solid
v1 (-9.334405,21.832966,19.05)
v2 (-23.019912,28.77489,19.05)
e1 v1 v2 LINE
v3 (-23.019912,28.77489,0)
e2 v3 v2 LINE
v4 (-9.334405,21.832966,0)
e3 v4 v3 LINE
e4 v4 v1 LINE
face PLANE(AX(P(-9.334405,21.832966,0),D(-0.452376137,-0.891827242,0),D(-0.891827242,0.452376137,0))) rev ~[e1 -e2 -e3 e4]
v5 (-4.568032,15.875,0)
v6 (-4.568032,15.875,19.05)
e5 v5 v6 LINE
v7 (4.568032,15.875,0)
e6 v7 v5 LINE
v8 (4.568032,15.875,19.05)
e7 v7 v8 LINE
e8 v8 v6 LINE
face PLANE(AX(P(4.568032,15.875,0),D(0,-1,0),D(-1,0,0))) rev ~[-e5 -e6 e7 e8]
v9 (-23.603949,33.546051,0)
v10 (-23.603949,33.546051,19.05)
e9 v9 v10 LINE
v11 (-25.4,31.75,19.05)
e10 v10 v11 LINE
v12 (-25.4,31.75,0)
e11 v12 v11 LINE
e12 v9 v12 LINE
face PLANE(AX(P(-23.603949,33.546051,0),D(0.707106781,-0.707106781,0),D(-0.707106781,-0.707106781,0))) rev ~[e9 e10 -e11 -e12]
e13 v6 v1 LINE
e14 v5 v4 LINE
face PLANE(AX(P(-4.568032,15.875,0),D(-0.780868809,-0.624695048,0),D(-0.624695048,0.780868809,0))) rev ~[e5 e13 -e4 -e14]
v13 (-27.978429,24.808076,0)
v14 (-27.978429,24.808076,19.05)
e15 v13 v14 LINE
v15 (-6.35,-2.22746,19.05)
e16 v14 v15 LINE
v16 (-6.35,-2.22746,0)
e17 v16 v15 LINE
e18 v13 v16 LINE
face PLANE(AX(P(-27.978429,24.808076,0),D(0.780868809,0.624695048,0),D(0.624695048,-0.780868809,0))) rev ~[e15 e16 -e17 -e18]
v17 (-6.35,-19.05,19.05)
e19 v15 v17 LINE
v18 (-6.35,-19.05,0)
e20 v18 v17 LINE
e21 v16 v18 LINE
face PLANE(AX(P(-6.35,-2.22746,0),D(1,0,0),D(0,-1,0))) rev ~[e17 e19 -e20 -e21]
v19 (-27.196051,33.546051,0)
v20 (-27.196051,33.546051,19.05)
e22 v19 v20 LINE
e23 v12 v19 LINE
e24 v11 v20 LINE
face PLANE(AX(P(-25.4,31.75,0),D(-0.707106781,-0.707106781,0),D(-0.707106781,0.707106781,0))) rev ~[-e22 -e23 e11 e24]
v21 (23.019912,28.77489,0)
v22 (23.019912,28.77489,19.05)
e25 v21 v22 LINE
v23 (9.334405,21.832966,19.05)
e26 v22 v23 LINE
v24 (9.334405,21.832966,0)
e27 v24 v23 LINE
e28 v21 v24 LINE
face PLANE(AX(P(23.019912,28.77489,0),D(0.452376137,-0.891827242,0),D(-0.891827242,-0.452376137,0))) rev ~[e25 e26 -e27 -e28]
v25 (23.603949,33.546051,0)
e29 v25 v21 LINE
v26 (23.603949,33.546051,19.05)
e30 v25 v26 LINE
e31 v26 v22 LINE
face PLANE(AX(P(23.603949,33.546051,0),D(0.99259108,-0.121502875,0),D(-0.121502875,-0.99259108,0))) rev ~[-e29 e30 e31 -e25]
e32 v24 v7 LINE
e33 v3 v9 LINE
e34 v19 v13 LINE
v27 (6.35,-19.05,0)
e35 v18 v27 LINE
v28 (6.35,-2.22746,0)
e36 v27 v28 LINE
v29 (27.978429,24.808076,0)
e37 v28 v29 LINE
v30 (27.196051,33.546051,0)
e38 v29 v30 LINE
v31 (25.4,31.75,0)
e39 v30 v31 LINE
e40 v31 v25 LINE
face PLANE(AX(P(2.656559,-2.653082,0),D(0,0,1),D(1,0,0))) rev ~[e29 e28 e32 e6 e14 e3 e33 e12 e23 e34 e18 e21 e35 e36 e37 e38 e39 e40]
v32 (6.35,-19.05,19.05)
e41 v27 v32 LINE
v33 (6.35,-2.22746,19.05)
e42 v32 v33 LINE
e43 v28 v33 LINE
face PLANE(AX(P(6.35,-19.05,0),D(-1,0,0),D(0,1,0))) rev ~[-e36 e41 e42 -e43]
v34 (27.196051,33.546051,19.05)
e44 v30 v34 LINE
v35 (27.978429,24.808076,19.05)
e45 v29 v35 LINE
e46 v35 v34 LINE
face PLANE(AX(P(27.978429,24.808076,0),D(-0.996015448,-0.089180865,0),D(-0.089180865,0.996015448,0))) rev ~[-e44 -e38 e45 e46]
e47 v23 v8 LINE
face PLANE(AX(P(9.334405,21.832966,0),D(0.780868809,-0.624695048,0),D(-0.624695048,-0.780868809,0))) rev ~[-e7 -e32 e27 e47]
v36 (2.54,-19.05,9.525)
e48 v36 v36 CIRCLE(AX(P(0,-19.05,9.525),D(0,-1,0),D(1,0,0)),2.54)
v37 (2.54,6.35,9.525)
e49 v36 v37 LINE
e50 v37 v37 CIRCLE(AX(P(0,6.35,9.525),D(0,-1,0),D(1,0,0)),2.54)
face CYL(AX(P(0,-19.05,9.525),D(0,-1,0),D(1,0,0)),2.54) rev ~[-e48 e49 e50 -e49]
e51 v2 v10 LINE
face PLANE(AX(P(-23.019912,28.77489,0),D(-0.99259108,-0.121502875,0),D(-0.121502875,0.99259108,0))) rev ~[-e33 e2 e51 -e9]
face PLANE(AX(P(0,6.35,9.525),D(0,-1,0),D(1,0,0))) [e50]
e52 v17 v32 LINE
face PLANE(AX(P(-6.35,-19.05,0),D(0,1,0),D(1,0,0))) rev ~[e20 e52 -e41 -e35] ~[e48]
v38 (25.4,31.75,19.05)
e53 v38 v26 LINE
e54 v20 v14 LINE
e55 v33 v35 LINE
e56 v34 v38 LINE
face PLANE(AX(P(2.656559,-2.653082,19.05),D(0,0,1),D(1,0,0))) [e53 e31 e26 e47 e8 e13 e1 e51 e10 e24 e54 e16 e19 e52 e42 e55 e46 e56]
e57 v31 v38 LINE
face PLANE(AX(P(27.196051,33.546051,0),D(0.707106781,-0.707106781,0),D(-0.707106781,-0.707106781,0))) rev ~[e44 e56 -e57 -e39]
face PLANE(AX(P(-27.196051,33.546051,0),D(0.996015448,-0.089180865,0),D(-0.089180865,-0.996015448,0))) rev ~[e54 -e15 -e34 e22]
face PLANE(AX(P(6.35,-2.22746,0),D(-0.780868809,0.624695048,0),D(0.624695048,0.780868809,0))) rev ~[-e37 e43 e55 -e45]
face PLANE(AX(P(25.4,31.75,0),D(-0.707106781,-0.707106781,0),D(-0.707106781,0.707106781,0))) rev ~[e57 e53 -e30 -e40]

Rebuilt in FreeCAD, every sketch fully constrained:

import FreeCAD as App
import Part
import Sketcher

V = App.Vector
Q = App.Units.Quantity

doc = App.newDocument("Part")
body = doc.addObject("PartDesign::Body", "Body")

# Sketch on XY plane
sketch1 = doc.addObject("Sketcher::SketchObject", "Sketch")
body.addObject(sketch1)
sketch1.AttachmentSupport = (doc.XY_Plane, [""])
sketch1.MapMode = "FlatFace"
sketch1.addGeometry(Part.LineSegment(V(6.3, -19.1, 0), V(6.3, -2.2, 0)), False)
sketch1.addGeometry(Part.LineSegment(V(6.3, -2.2, 0), V(28, 24.8, 0)), False)
sketch1.addGeometry(Part.LineSegment(V(28, 24.8, 0), V(27.2, 33.5, 0)), False)
sketch1.addGeometry(Part.LineSegment(V(27.2, 33.5, 0), V(25.4, 31.8, 0)), False)
sketch1.addGeometry(Part.LineSegment(V(25.4, 31.8, 0), V(23.6, 33.5, 0)), False)
sketch1.addGeometry(Part.LineSegment(V(23.6, 33.5, 0), V(23, 28.8, 0)), False)
sketch1.addGeometry(Part.LineSegment(V(23, 28.8, 0), V(9.3, 21.8, 0)), False)
sketch1.addGeometry(Part.LineSegment(V(9.3, 21.8, 0), V(4.6, 15.9, 0)), False)
sketch1.addGeometry(Part.LineSegment(V(4.6, 15.9, 0), V(-4.6, 15.9, 0)), False)
sketch1.addGeometry(Part.LineSegment(V(-4.6, 15.9, 0), V(-9.3, 21.8, 0)), False)
sketch1.addGeometry(Part.LineSegment(V(-9.3, 21.8, 0), V(-23, 28.8, 0)), False)
sketch1.addGeometry(Part.LineSegment(V(-23, 28.8, 0), V(-23.6, 33.5, 0)), False)
sketch1.addGeometry(Part.LineSegment(V(-23.6, 33.5, 0), V(-25.4, 31.8, 0)), False)
sketch1.addGeometry(Part.LineSegment(V(-25.4, 31.8, 0), V(-27.2, 33.5, 0)), False)
sketch1.addGeometry(Part.LineSegment(V(-27.2, 33.5, 0), V(-28, 24.8, 0)), False)
sketch1.addGeometry(Part.LineSegment(V(-28, 24.8, 0), V(-6.3, -2.2, 0)), False)
sketch1.addGeometry(Part.LineSegment(V(-6.3, -2.2, 0), V(-6.3, -19.1, 0)), False)
sketch1.addGeometry(Part.LineSegment(V(-6.3, -19.1, 0), V(6.3, -19.1, 0)), False)
sketch1.addConstraint(Sketcher.Constraint("Coincident", 0, 2, 1, 1))
sketch1.addConstraint(Sketcher.Constraint("Coincident", 1, 2, 2, 1))
sketch1.addConstraint(Sketcher.Constraint("Coincident", 2, 2, 3, 1))
sketch1.addConstraint(Sketcher.Constraint("Coincident", 3, 2, 4, 1))
sketch1.addConstraint(Sketcher.Constraint("Coincident", 4, 2, 5, 1))
sketch1.addConstraint(Sketcher.Constraint("Coincident", 5, 2, 6, 1))
sketch1.addConstraint(Sketcher.Constraint("Coincident", 6, 2, 7, 1))
sketch1.addConstraint(Sketcher.Constraint("Coincident", 7, 2, 8, 1))
sketch1.addConstraint(Sketcher.Constraint("Coincident", 8, 2, 9, 1))
sketch1.addConstraint(Sketcher.Constraint("Coincident", 9, 2, 10, 1))
sketch1.addConstraint(Sketcher.Constraint("Coincident", 10, 2, 11, 1))
sketch1.addConstraint(Sketcher.Constraint("Coincident", 11, 2, 12, 1))
sketch1.addConstraint(Sketcher.Constraint("Coincident", 12, 2, 13, 1))
sketch1.addConstraint(Sketcher.Constraint("Coincident", 13, 2, 14, 1))
sketch1.addConstraint(Sketcher.Constraint("Coincident", 14, 2, 15, 1))
sketch1.addConstraint(Sketcher.Constraint("Coincident", 15, 2, 16, 1))
sketch1.addConstraint(Sketcher.Constraint("Coincident", 16, 2, 17, 1))
sketch1.addConstraint(Sketcher.Constraint("Coincident", 17, 2, 0, 1))
sketch1.addConstraint(Sketcher.Constraint("Vertical", 0))
sketch1.addConstraint(Sketcher.Constraint("Horizontal", 8))
sketch1.addConstraint(Sketcher.Constraint("Vertical", 16))
sketch1.addConstraint(Sketcher.Constraint("Horizontal", 17))
sketch1.addConstraint(Sketcher.Constraint("Symmetric", 6, 2, 9, 2, -2))
sketch1.addConstraint(Sketcher.Constraint("Symmetric", 5, 2, 10, 2, -2))
sketch1.addConstraint(Sketcher.Constraint("Symmetric", 4, 2, 11, 2, -2))
sketch1.addConstraint(Sketcher.Constraint("Symmetric", 3, 2, 12, 2, -2))
sketch1.addConstraint(Sketcher.Constraint("Symmetric", 2, 2, 13, 2, -2))
sketch1.addConstraint(Sketcher.Constraint("Symmetric", 1, 2, 14, 2, -2))
sketch1.addConstraint(Sketcher.Constraint("Symmetric", 0, 2, 15, 2, -2))
sketch1.addConstraint(Sketcher.Constraint("Perpendicular", 3, 4))
sketch1.addConstraint(Sketcher.Constraint("Parallel", 1, 7))
sketch1.addConstraint(Sketcher.Constraint("Perpendicular", 4, 12))
sketch1.addConstraint(Sketcher.Constraint("Parallel", 9, 15))
sketch1.addConstraint(Sketcher.Constraint("Horizontal", 2, 2, 4, 2))
sketch1.addConstraint(Sketcher.Constraint("DistanceX", 17, 1, 17, 2, Q("0.5 in")))
sketch1.addConstraint(Sketcher.Constraint("DistanceX", -1, 1, 3, 2, Q("1 in")))
sketch1.addConstraint(Sketcher.Constraint("Distance", 3, Q("0.1 in")))
sketch1.addConstraint(Sketcher.Constraint("DistanceY", -1, 1, 3, 2, Q("1.25 in")))
sketch1.addConstraint(Sketcher.Constraint("DistanceY", 16, 2, -1, 1, Q("0.75 in")))
sketch1.addConstraint(Sketcher.Constraint("DistanceY", -1, 1, 7, 2, Q("0.625 in")))
sketch1.addConstraint(Sketcher.Constraint("DistanceY", 0, 1, 0, 2, 16.82254))
sketch1.addConstraint(Sketcher.Constraint("Distance", 1, 34.622379))
sketch1.addConstraint(Sketcher.Constraint("Distance", 2, 8.772931))
sketch1.addConstraint(Sketcher.Constraint("Distance", 6, 15.345468))
sketch1.addConstraint(Sketcher.Constraint("Distance", 7, 7.629919))
sketch1.addConstraint(Sketcher.Constraint("DistanceX", 8, 2, 8, 1, 9.136064))
sketch1.addConstraint(Sketcher.Constraint("DistanceX", -1, 1, 5, 2, 23.019912))
pad1 = doc.addObject("PartDesign::Pad", "Pad")
body.addObject(pad1)
pad1.Profile = sketch1
pad1.Length = Q("0.75 in")

# Sketch on XZ plane
sketch2 = doc.addObject("Sketcher::SketchObject", "Sketch001")
body.addObject(sketch2)
sketch2.AttachmentSupport = (doc.XZ_Plane, [""])
sketch2.MapMode = "FlatFace"
sketch2.AttachmentOffset = App.Placement(V(0, 0, 0.75 * 25.4), App.Rotation())
sketch2.addGeometry(Part.Circle(V(0, 9.5, 0), V(0, 0, 1), 2.5), False)
sketch2.addConstraint(Sketcher.Constraint("PointOnObject", 0, 3, -2))
sketch2.addConstraint(Sketcher.Constraint("Diameter", 0, Q("0.2 in")))
sketch2.addConstraint(Sketcher.Constraint("DistanceY", -1, 1, 0, 3, Q("0.375 in")))
pocket1 = doc.addObject("PartDesign::Pocket", "Pocket")
body.addObject(pocket1)
pocket1.Profile = sketch2
pocket1.Length = Q("1 in")

doc.recompute()
